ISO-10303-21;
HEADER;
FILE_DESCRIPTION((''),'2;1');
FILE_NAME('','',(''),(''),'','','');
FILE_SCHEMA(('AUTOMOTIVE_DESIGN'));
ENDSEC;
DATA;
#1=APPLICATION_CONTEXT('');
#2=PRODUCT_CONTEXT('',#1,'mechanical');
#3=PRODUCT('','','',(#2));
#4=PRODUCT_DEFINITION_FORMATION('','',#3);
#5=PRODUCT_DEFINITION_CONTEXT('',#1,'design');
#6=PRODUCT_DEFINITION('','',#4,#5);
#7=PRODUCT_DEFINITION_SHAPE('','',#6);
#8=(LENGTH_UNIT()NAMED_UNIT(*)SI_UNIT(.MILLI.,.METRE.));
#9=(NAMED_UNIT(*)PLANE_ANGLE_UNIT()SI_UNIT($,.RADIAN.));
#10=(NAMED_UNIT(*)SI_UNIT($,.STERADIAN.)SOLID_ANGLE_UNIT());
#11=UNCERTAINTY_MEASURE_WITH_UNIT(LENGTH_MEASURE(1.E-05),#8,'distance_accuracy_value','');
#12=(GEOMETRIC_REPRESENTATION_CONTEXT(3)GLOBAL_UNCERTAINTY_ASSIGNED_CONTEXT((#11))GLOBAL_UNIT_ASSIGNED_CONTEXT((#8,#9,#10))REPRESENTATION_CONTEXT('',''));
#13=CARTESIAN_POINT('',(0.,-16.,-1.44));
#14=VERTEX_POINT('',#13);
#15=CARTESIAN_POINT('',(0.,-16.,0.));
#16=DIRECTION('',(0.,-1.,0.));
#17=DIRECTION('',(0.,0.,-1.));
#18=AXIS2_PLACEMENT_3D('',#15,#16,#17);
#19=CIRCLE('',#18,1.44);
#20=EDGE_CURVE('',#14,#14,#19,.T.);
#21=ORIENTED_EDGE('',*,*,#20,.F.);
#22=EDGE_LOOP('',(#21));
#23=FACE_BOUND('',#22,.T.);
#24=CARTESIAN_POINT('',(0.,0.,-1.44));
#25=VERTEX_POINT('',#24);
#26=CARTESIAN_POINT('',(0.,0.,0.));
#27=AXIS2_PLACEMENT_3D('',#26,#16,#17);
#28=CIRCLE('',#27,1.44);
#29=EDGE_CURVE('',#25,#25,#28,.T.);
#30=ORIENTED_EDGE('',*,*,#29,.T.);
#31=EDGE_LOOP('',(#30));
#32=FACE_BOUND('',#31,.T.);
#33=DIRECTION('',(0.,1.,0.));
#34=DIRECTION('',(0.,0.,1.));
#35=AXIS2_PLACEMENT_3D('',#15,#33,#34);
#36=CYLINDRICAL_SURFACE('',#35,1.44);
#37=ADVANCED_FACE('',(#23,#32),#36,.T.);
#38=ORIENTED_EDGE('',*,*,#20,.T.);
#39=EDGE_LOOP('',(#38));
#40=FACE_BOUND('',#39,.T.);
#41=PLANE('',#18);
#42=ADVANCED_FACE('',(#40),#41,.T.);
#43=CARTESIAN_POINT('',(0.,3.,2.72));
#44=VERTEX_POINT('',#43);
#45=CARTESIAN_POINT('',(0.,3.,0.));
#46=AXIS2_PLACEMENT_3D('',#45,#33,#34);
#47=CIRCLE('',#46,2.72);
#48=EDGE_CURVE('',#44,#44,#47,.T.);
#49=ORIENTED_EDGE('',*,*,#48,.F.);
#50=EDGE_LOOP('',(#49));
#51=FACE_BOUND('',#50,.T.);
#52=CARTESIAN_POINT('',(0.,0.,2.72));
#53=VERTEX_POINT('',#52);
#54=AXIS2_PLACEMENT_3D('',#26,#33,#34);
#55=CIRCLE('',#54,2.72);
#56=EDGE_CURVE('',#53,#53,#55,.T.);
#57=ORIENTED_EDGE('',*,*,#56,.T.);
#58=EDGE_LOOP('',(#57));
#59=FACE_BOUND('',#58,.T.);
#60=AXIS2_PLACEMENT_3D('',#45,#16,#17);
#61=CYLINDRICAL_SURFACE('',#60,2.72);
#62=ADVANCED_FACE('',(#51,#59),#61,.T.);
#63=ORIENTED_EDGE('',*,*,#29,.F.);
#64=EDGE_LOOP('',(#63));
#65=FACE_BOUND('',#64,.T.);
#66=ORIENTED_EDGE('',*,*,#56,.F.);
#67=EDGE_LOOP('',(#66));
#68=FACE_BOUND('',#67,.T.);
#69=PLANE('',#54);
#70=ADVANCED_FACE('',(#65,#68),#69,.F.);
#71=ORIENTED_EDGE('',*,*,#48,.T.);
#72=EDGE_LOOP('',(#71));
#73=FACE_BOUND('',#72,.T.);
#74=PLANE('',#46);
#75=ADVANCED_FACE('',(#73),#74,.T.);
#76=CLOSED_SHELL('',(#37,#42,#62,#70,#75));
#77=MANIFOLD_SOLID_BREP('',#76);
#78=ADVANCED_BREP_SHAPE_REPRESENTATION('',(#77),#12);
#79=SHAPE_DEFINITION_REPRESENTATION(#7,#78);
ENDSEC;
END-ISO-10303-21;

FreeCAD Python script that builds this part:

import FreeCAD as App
import Part
import Sketcher
from FreeCAD import Vector

doc = App.newDocument("Part")
body = doc.addObject("PartDesign::Body", "Body")

sketch1 = body.newObject("Sketcher::SketchObject", "Sketch")
sketch1.AttachmentSupport = (doc.getObject("XZ_Plane"), [""])
sketch1.MapMode = "FlatFace"
sketch1.addGeometry(Part.Circle(Vector(0, 0, 0), Vector(0, 0, 1), 2.7), False)
sketch1.addConstraint([
    Sketcher.Constraint("Coincident", 0, 3, -1, 1),
    Sketcher.Constraint("Diameter", 0, 5.44),
])
pad1 = body.newObject("PartDesign::Pad", "Pad")
pad1.Profile = sketch1
pad1.Length = 3
pad1.Reversed = True

sketch2 = body.newObject("Sketcher::SketchObject", "Sketch001")
sketch2.AttachmentSupport = (doc.getObject("XZ_Plane"), [""])
sketch2.MapMode = "FlatFace"
sketch2.addGeometry(Part.Circle(Vector(0, 0, 0), Vector(0, 0, 1), 1.4), False)
sketch2.addConstraint([
    Sketcher.Constraint("Coincident", 0, 3, -1, 1),
    Sketcher.Constraint("Diameter", 0, 2.88),
])
pad2 = body.newObject("PartDesign::Pad", "Pad001")
pad2.Profile = sketch2
pad2.Length = 16

doc.recompute()
